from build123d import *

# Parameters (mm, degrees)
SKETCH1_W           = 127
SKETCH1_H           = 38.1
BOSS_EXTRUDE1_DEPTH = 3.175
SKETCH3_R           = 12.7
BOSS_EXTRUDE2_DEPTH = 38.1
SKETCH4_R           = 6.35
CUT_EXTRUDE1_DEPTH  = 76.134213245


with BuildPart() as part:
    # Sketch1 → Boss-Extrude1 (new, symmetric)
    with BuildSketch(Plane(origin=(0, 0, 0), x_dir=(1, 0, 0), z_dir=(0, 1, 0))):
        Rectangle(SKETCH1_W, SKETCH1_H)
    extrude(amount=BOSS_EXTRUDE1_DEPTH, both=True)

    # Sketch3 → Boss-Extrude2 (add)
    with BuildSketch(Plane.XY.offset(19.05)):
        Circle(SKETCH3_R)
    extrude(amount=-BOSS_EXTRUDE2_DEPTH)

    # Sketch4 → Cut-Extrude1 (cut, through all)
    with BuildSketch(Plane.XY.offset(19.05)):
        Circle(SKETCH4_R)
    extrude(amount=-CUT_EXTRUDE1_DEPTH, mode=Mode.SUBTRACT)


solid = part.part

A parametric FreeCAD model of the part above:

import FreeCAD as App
import Part
import Sketcher
Q = App.Units.Quantity


def add_polygon(sketch, points):
    """Adds a closed chain of lines whose ends are joined by coincident constraints."""
    first, n = sketch.GeometryCount, len(points)
    for a, b in zip(points, points[1:] + points[:1]):
        sketch.addGeometry(Part.LineSegment(App.Vector(*a, 0), App.Vector(*b, 0)), False)
    for i in range(n):
        sketch.addConstraint(Sketcher.Constraint("Coincident", first + i, 2, first + (i + 1) % n, 1))

doc = App.newDocument("Part")
params = doc.addObject("Spreadsheet::Sheet", "Params")
for row, (alias, value) in enumerate([
    ("sketch1_width", "5 in"),
    ("sketch1_height", "1.5 in"),
    ("pad1_length", "0.25 in"),
    ("sketch2_diameter", "1 in"),
    ("pad2_length", "1.5 in"),
    ("sketch3_diameter", "0.5 in"),
], start=1):
    params.set(f"A{row}", alias)
    params.set(f"B{row}", "=" + value)
    params.setAlias(f"B{row}", alias)

body = doc.addObject("PartDesign::Body", "Body")

# Sketch on XZ plane
sketch1 = body.newObject("Sketcher::SketchObject", "Sketch")
sketch1.AttachmentSupport = (doc.getObject("XZ_Plane"), [""])
sketch1.MapMode = "FlatFace"
add_polygon(sketch1, [(-63.5, -19.05), (-63.5, 19.05), (63.5, 19.05), (63.5, -19.05)])  # lines 0-3
sketch1.addConstraint([
    Sketcher.Constraint("Vertical", 0),
    Sketcher.Constraint("Horizontal", 1),
    Sketcher.Constraint("Vertical", 2),
    Sketcher.Constraint("Horizontal", 3),
    Sketcher.Constraint("Symmetric", 0, 2, 2, 2, -1, 1),
    Sketcher.Constraint("DistanceX", 1, 1, 1, 2, Q("5 in")),
    Sketcher.Constraint("DistanceY", 0, 1, 0, 2, Q("1.5 in")),
])
sketch1.setExpression("Constraints[9]", "Params.sketch1_width")
sketch1.setExpression("Constraints[10]", "Params.sketch1_height")
pad1 = body.newObject("PartDesign::Pad", "Pad")
pad1.Profile = sketch1
pad1.setExpression("Length", "Params.pad1_length")
pad1.Midplane = True

# Sketch on XY plane
sketch2 = body.newObject("Sketcher::SketchObject", "Sketch001")
sketch2.AttachmentSupport = (doc.getObject("XY_Plane"), [""])
sketch2.MapMode = "FlatFace"
sketch2.AttachmentOffset = App.Placement(App.Vector(0, 0, 0.75 * 25.4), App.Rotation())
sketch2.addGeometry(Part.Circle(App.Vector(0, 0, 0), App.Vector(0, 0, 1), 12.7), False)
sketch2.addConstraint([
    Sketcher.Constraint("Coincident", 0, 3, -1, 1),
    Sketcher.Constraint("Diameter", 0, Q("1 in")),
])
sketch2.setExpression("Constraints[1]", "Params.sketch2_diameter")
pad2 = body.newObject("PartDesign::Pad", "Pad001")
pad2.Profile = sketch2
pad2.setExpression("Length", "Params.pad2_length")
pad2.Reversed = True

# Sketch on XY plane
sketch3 = body.newObject("Sketcher::SketchObject", "Sketch002")
sketch3.AttachmentSupport = (doc.getObject("XY_Plane"), [""])
sketch3.MapMode = "FlatFace"
sketch3.AttachmentOffset = App.Placement(App.Vector(0, 0, 0.75 * 25.4), App.Rotation())
sketch3.addGeometry(Part.Circle(App.Vector(0, 0, 0), App.Vector(0, 0, 1), 6.35), False)
sketch3.addConstraint([
    Sketcher.Constraint("Coincident", 0, 3, -1, 1),
    Sketcher.Constraint("Diameter", 0, Q("0.5 in")),
])
sketch3.setExpression("Constraints[1]", "Params.sketch3_diameter")
pocket1 = body.newObject("PartDesign::Pocket", "Pocket")
pocket1.Profile = sketch3
pocket1.Type = "ThroughAll"

doc.recompute()
